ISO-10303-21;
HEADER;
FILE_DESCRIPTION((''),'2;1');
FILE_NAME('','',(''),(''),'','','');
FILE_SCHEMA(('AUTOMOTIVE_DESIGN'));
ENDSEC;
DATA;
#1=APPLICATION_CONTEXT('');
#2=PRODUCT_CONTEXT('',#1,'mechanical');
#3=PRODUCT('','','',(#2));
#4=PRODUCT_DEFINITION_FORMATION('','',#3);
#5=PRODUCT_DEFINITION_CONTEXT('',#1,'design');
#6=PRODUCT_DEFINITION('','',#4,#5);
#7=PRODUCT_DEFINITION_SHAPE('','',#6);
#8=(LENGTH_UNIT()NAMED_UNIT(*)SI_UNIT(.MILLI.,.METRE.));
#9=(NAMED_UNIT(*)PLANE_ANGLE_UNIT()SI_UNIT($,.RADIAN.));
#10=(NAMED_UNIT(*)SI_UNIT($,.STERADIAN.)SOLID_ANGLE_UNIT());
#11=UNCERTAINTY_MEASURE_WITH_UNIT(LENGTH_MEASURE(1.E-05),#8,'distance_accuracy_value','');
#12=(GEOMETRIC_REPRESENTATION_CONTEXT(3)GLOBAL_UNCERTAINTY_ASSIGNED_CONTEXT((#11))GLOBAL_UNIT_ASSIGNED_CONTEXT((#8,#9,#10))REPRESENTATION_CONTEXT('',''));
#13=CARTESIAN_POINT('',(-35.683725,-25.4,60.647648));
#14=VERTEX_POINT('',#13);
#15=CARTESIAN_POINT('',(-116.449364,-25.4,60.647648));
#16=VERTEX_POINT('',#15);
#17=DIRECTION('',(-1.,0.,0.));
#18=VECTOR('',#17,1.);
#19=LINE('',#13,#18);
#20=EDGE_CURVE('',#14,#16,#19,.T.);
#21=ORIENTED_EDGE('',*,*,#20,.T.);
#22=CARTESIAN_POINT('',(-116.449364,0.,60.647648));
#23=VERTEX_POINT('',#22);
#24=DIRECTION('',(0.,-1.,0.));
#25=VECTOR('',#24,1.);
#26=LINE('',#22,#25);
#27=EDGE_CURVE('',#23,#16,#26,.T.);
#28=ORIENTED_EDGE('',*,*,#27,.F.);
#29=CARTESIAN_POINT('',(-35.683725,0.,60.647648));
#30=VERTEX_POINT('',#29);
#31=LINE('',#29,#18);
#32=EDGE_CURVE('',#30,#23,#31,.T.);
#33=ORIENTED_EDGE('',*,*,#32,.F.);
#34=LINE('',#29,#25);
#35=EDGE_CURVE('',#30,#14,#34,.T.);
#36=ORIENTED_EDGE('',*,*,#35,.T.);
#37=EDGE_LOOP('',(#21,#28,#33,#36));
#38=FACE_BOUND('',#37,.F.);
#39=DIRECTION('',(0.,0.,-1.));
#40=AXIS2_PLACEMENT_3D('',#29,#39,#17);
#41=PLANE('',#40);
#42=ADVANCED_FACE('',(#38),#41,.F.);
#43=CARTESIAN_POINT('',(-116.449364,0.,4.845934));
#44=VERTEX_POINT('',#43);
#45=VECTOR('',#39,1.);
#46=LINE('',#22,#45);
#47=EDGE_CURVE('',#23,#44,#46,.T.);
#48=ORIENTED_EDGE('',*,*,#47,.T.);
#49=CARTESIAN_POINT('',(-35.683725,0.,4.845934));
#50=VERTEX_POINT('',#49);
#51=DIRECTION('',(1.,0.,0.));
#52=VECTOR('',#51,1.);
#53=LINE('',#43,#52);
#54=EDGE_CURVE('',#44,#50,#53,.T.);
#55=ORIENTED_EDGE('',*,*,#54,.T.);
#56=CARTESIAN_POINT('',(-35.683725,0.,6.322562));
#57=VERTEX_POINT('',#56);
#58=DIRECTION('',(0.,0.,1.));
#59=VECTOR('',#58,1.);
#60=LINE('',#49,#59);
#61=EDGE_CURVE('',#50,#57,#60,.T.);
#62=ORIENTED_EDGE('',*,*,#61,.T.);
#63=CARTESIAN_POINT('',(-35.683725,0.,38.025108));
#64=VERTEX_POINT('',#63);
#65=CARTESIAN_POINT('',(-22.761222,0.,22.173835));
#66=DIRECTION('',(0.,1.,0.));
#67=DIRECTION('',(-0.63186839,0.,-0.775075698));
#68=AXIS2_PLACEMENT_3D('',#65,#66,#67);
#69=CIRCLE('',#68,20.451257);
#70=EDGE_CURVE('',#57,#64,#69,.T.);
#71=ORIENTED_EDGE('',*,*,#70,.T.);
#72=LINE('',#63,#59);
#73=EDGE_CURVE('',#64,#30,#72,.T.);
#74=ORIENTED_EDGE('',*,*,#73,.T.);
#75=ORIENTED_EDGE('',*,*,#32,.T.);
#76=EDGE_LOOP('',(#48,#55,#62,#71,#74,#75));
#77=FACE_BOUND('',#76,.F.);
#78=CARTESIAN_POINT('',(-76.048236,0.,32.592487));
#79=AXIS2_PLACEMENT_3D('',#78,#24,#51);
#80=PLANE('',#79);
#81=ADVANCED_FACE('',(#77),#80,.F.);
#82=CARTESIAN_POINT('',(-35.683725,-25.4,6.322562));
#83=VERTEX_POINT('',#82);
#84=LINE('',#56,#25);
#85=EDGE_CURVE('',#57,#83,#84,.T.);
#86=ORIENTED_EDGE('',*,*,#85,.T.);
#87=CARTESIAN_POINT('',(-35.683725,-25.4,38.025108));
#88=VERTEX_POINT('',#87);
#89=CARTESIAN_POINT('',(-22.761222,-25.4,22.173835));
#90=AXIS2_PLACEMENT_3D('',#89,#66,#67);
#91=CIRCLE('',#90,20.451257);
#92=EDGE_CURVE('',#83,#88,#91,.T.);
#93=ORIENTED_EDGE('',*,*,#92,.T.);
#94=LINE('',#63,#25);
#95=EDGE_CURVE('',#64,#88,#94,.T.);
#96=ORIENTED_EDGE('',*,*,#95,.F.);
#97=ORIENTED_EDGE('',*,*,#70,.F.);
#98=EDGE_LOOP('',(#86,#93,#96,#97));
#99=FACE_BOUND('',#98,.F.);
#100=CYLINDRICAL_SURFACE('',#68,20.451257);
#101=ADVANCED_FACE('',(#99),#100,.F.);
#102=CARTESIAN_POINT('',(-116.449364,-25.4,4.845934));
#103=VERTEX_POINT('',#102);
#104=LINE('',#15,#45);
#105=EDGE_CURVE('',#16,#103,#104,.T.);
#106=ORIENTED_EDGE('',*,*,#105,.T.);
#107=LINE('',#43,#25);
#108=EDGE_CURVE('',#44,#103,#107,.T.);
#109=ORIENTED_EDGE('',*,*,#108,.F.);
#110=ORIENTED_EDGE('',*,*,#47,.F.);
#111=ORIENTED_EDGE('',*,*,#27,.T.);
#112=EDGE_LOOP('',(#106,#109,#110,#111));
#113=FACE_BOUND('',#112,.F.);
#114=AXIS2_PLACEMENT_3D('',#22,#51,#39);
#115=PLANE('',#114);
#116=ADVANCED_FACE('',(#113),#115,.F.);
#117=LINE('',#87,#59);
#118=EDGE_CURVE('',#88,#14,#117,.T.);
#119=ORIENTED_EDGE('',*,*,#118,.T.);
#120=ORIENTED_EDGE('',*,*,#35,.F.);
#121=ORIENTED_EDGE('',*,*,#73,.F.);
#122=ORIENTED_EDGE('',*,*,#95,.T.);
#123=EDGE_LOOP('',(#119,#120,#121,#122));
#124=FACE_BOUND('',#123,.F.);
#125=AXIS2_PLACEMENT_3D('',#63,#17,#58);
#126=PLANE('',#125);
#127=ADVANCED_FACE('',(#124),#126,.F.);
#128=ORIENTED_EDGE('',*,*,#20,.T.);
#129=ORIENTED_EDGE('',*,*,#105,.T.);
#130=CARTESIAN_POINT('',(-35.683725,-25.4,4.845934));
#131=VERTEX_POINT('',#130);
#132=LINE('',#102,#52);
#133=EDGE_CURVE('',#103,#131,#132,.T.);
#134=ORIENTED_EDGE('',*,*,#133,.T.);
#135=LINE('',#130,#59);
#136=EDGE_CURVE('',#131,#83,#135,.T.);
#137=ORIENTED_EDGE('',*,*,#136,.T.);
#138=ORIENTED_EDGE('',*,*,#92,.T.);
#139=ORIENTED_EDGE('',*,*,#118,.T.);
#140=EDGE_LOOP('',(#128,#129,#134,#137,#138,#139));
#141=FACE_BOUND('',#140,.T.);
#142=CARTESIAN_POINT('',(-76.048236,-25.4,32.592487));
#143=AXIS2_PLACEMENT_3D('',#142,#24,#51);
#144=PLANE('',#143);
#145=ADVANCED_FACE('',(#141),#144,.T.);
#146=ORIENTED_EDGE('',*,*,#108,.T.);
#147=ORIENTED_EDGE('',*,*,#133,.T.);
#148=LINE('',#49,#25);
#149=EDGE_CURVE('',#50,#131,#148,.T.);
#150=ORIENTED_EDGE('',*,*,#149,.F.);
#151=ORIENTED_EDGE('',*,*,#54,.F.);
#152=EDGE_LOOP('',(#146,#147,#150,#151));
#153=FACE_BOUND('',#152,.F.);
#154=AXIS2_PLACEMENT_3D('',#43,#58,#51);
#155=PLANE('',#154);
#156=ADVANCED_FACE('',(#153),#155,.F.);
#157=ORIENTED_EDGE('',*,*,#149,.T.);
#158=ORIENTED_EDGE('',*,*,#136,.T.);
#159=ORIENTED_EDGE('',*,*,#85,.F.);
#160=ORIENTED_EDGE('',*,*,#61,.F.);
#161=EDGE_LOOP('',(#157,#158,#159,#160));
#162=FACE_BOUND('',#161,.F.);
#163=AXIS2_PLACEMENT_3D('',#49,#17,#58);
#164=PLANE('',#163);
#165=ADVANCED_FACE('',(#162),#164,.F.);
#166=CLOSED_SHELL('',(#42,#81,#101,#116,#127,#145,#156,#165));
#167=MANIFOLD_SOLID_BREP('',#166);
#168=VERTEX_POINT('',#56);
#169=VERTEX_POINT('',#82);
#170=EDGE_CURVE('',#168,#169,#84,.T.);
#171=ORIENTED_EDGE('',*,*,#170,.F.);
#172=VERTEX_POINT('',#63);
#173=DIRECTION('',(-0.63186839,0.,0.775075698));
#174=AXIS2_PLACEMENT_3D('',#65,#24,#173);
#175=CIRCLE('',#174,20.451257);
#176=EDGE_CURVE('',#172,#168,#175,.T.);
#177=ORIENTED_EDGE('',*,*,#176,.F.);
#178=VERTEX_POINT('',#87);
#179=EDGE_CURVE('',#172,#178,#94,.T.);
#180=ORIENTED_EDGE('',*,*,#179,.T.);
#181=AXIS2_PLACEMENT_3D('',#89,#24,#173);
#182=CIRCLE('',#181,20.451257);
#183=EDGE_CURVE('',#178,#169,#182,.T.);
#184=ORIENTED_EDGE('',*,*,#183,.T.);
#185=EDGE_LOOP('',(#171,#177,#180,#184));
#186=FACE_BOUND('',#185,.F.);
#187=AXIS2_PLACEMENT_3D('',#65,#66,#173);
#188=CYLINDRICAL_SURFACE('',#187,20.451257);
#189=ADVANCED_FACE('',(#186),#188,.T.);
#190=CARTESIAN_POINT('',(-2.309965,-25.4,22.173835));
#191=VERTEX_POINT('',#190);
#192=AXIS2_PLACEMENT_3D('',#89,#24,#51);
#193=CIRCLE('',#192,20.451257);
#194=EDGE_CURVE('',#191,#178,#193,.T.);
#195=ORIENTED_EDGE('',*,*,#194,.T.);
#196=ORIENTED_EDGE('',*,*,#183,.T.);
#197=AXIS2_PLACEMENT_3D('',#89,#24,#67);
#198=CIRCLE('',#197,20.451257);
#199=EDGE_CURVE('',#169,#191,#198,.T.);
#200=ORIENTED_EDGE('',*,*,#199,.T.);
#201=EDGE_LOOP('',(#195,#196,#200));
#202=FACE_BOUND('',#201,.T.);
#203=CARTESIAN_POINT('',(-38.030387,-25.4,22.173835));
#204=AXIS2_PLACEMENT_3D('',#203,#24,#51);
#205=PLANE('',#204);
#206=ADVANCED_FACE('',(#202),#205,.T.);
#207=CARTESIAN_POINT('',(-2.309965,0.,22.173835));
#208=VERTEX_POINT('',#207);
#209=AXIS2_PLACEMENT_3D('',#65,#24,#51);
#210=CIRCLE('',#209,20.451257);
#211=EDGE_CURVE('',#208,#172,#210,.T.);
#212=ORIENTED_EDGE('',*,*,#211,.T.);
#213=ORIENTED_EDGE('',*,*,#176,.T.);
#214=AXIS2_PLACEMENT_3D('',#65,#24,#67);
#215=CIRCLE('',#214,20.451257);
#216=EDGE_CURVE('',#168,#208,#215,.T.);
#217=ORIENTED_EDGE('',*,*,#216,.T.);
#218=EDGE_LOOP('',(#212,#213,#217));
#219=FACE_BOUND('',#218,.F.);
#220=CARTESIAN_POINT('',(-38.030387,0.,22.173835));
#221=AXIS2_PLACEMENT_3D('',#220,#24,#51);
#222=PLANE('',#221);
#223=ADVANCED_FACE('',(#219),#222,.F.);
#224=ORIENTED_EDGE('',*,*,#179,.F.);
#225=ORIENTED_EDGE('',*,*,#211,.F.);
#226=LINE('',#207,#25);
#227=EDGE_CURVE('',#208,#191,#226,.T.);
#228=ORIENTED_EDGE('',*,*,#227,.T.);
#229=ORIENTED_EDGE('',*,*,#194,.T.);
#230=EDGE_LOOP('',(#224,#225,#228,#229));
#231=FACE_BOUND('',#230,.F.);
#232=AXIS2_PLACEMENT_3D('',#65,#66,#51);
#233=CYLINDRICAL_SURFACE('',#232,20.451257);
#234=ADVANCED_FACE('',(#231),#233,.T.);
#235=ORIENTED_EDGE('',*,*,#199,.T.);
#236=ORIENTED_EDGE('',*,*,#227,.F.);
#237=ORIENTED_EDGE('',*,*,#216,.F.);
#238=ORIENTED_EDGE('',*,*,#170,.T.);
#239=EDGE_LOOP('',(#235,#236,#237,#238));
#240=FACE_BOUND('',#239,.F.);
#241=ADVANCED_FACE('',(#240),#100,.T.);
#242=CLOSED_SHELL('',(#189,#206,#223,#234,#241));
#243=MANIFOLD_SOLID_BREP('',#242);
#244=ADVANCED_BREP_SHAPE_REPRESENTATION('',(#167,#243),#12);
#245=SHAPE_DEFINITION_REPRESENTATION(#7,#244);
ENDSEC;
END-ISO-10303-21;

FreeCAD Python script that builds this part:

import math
import FreeCAD as App
import Part
import Sketcher
from FreeCAD import Vector
Q = App.Units.Quantity

doc = App.newDocument("Part")
body = doc.addObject("PartDesign::Body", "Body")

# Sketch on XZ plane
sketch1 = doc.addObject("Sketcher::SketchObject", "Sketch")
body.addObject(sketch1)
sketch1.AttachmentSupport = (doc.XZ_Plane, [""])
sketch1.MapMode = "FlatFace"
sketch1.addGeometry([
    Part.LineSegment(Vector(-35.7, 60.6, 0), Vector(-116.4, 60.6, 0)),  # 0
    Part.LineSegment(Vector(-116.4, 60.6, 0), Vector(-116.4, 4.8, 0)),  # 1
    Part.LineSegment(Vector(-116.4, 4.8, 0), Vector(-35.7, 4.8, 0)),  # 2
    Part.LineSegment(Vector(-35.7, 4.8, 0), Vector(-35.7, 6.3, 0)),  # 3
    Part.ArcOfCircle(Part.Circle(Vector(-22.8, 22.2, 0), Vector(0, 0, 1), 20.5), math.radians(129), math.radians(231)),  # 4
    Part.LineSegment(Vector(-35.7, 38, 0), Vector(-35.7, 60.6, 0)),  # 5
], False)
sketch1.addConstraint([
    Sketcher.Constraint("Coincident", 0, 2, 1, 1),
    Sketcher.Constraint("Coincident", 1, 2, 2, 1),
    Sketcher.Constraint("Coincident", 2, 2, 3, 1),
    Sketcher.Constraint("Coincident", 3, 2, 4, 2),
    Sketcher.Constraint("Coincident", 4, 1, 5, 1),
    Sketcher.Constraint("Coincident", 5, 2, 0, 1),
    Sketcher.Constraint("Horizontal", 0),
    Sketcher.Constraint("Vertical", 1),
    Sketcher.Constraint("Horizontal", 2),
    Sketcher.Constraint("Vertical", 3),
    Sketcher.Constraint("Vertical", 5),
    Sketcher.Constraint("Vertical", 3, 2, 4, 1),
    Sketcher.Constraint("Radius", 4, 20.451257),
    Sketcher.Constraint("DistanceX", 0, 2, 0, 1, 80.765639),
    Sketcher.Constraint("DistanceY", 5, 1, 5, 2, 22.62254),
    Sketcher.Constraint("DistanceY", 1, 2, 4, 3, 17.327901),
    Sketcher.Constraint("DistanceY", 1, 2, 1, 1, 55.801713),
    Sketcher.Constraint("DistanceX", 4, 3, -1, 1, 22.761222),
    Sketcher.Constraint("DistanceY", -1, 1, 4, 3, 22.173835),
])
pad1 = doc.addObject("PartDesign::Pad", "Pad")
body.addObject(pad1)
pad1.Profile = sketch1
pad1.Length = Q("1 in")
body2 = doc.addObject("PartDesign::Body", "Body001")

# Sketch on XZ plane
sketch2 = doc.addObject("Sketcher::SketchObject", "Sketch001")
body2.addObject(sketch2)
sketch2.AttachmentSupport = (doc.getObject("XZ_Plane001"), [""])
sketch2.MapMode = "FlatFace"
sketch2.addGeometry([
    Part.ArcOfCircle(Part.Circle(Vector(-23, 22, 0), Vector(0, 0, 1), 20), math.radians(129), math.radians(231)),
    Part.ArcOfCircle(Part.Circle(Vector(-23, 22, 0), Vector(0, 0, 1), 20), math.radians(-129), math.radians(0)),
    Part.ArcOfCircle(Part.Circle(Vector(-23, 22, 0), Vector(0, 0, 1), 20), math.radians(0), math.radians(129)),
], False)
sketch2.addConstraint([
    Sketcher.Constraint("Tangent", 0, 2, 1, 1),
    Sketcher.Constraint("Tangent", 1, 2, 2, 1),
    Sketcher.Constraint("Tangent", 2, 2, 0, 1),
    Sketcher.Constraint("Horizontal", 2, 3, 1, 2),
    Sketcher.Constraint("Vertical", 0, 2, 2, 2),
    Sketcher.Constraint("Radius", 0, 20.451257),
    Sketcher.Constraint("DistanceX", 0, 3, -1, 1, 22.761222),
    Sketcher.Constraint("DistanceX", 0, 2, 1, 2, 33.37376),
    Sketcher.Constraint("DistanceY", -1, 1, 0, 3, 22.173835),
])
pad2 = doc.addObject("PartDesign::Pad", "Pad001")
body2.addObject(pad2)
pad2.Profile = sketch2
pad2.Length = Q("1 in")

doc.recompute()
